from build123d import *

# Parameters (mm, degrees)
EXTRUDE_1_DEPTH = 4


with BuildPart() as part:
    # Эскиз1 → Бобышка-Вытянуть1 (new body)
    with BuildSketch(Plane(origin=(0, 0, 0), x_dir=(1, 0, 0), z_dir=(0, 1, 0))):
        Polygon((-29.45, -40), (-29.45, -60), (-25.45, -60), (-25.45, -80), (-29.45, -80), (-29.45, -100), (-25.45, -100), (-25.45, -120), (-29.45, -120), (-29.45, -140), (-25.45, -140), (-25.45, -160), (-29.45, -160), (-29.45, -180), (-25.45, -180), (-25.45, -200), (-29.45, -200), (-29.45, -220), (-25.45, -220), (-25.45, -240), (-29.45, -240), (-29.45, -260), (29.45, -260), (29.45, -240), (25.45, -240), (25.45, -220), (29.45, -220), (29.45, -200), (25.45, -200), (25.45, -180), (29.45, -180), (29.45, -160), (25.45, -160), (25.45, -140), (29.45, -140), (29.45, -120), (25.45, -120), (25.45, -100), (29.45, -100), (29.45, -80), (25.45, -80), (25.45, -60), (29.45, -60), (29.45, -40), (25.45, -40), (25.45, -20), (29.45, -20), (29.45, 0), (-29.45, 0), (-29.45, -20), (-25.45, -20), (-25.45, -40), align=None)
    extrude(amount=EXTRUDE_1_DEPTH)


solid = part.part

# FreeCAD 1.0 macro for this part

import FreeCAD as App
import Part
import Sketcher

doc = App.newDocument("Part")
body = doc.addObject("PartDesign::Body", "Body")

sketch1 = body.newObject("Sketcher::SketchObject", "Sketch")
sketch1.AttachmentSupport = (doc.getObject("XZ_Plane"), [""])
sketch1.MapMode = "FlatFace"
sketch1.addGeometry([
    Part.LineSegment(App.Vector(-29.45, 40, 0), App.Vector(-29.45, 60, 0)),
    Part.LineSegment(App.Vector(-29.45, 60, 0), App.Vector(-25.45, 60, 0)),
    Part.LineSegment(App.Vector(-25.45, 60, 0), App.Vector(-25.45, 80, 0)),
    Part.LineSegment(App.Vector(-25.45, 80, 0), App.Vector(-29.45, 80, 0)),
    Part.LineSegment(App.Vector(-29.45, 80, 0), App.Vector(-29.45, 100, 0)),
    Part.LineSegment(App.Vector(-29.45, 100, 0), App.Vector(-25.45, 100, 0)),
    Part.LineSegment(App.Vector(-25.45, 100, 0), App.Vector(-25.45, 120, 0)),
    Part.LineSegment(App.Vector(-25.45, 120, 0), App.Vector(-29.45, 120, 0)),
    Part.LineSegment(App.Vector(-29.45, 120, 0), App.Vector(-29.45, 140, 0)),
    Part.LineSegment(App.Vector(-29.45, 140, 0), App.Vector(-25.45, 140, 0)),
    Part.LineSegment(App.Vector(-25.45, 140, 0), App.Vector(-25.45, 160, 0)),
    Part.LineSegment(App.Vector(-25.45, 160, 0), App.Vector(-29.45, 160, 0)),
    Part.LineSegment(App.Vector(-29.45, 160, 0), App.Vector(-29.45, 180, 0)),
    Part.LineSegment(App.Vector(-29.45, 180, 0), App.Vector(-25.45, 180, 0)),
    Part.LineSegment(App.Vector(-25.45, 180, 0), App.Vector(-25.45, 200, 0)),
    Part.LineSegment(App.Vector(-25.45, 200, 0), App.Vector(-29.45, 200, 0)),
    Part.LineSegment(App.Vector(-29.45, 200, 0), App.Vector(-29.45, 220, 0)),
    Part.LineSegment(App.Vector(-29.45, 220, 0), App.Vector(-25.45, 220, 0)),
    Part.LineSegment(App.Vector(-25.45, 220, 0), App.Vector(-25.45, 240, 0)),
    Part.LineSegment(App.Vector(-25.45, 240, 0), App.Vector(-29.45, 240, 0)),
    Part.LineSegment(App.Vector(-29.45, 240, 0), App.Vector(-29.45, 260, 0)),
    Part.LineSegment(App.Vector(-29.45, 260, 0), App.Vector(29.45, 260, 0)),
    Part.LineSegment(App.Vector(29.45, 260, 0), App.Vector(29.45, 240, 0)),
    Part.LineSegment(App.Vector(29.45, 240, 0), App.Vector(25.45, 240, 0)),
    Part.LineSegment(App.Vector(25.45, 240, 0), App.Vector(25.45, 220, 0)),
    Part.LineSegment(App.Vector(25.45, 220, 0), App.Vector(29.45, 220, 0)),
    Part.LineSegment(App.Vector(29.45, 220, 0), App.Vector(29.45, 200, 0)),
    Part.LineSegment(App.Vector(29.45, 200, 0), App.Vector(25.45, 200, 0)),
    Part.LineSegment(App.Vector(25.45, 200, 0), App.Vector(25.45, 180, 0)),
    Part.LineSegment(App.Vector(25.45, 180, 0), App.Vector(29.45, 180, 0)),
    Part.LineSegment(App.Vector(29.45, 180, 0), App.Vector(29.45, 160, 0)),
    Part.LineSegment(App.Vector(29.45, 160, 0), App.Vector(25.45, 160, 0)),
    Part.LineSegment(App.Vector(25.45, 160, 0), App.Vector(25.45, 140, 0)),
    Part.LineSegment(App.Vector(25.45, 140, 0), App.Vector(29.45, 140, 0)),
    Part.LineSegment(App.Vector(29.45, 140, 0), App.Vector(29.45, 120, 0)),
    Part.LineSegment(App.Vector(29.45, 120, 0), App.Vector(25.45, 120, 0)),
    Part.LineSegment(App.Vector(25.45, 120, 0), App.Vector(25.45, 100, 0)),
    Part.LineSegment(App.Vector(25.45, 100, 0), App.Vector(29.45, 100, 0)),
    Part.LineSegment(App.Vector(29.45, 100, 0), App.Vector(29.45, 80, 0)),
    Part.LineSegment(App.Vector(29.45, 80, 0), App.Vector(25.45, 80, 0)),
    Part.LineSegment(App.Vector(25.45, 80, 0), App.Vector(25.45, 60, 0)),
    Part.LineSegment(App.Vector(25.45, 60, 0), App.Vector(29.45, 60, 0)),
    Part.LineSegment(App.Vector(29.45, 60, 0), App.Vector(29.45, 40, 0)),
    Part.LineSegment(App.Vector(29.45, 40, 0), App.Vector(25.45, 40, 0)),
    Part.LineSegment(App.Vector(25.45, 40, 0), App.Vector(25.45, 20, 0)),
    Part.LineSegment(App.Vector(25.45, 20, 0), App.Vector(29.45, 20, 0)),
    Part.LineSegment(App.Vector(29.45, 20, 0), App.Vector(29.45, 0, 0)),
    Part.LineSegment(App.Vector(29.45, 0, 0), App.Vector(-29.45, 0, 0)),
    Part.LineSegment(App.Vector(-29.45, 0, 0), App.Vector(-29.45, 20, 0)),
    Part.LineSegment(App.Vector(-29.45, 20, 0), App.Vector(-25.45, 20, 0)),
    Part.LineSegment(App.Vector(-25.45, 20, 0), App.Vector(-25.45, 40, 0)),
    Part.LineSegment(App.Vector(-25.45, 40, 0), App.Vector(-29.45, 40, 0)),
], False)
sketch1.addConstraint([
    Sketcher.Constraint("Coincident", 0, 2, 1, 1),
    Sketcher.Constraint("Coincident", 1, 2, 2, 1),
    Sketcher.Constraint("Coincident", 2, 2, 3, 1),
    Sketcher.Constraint("Coincident", 3, 2, 4, 1),
    Sketcher.Constraint("Coincident", 4, 2, 5, 1),
    Sketcher.Constraint("Coincident", 5, 2, 6, 1),
    Sketcher.Constraint("Coincident", 6, 2, 7, 1),
    Sketcher.Constraint("Coincident", 7, 2, 8, 1),
    Sketcher.Constraint("Coincident", 8, 2, 9, 1),
    Sketcher.Constraint("Coincident", 9, 2, 10, 1),
    Sketcher.Constraint("Coincident", 10, 2, 11, 1),
    Sketcher.Constraint("Coincident", 11, 2, 12, 1),
    Sketcher.Constraint("Coincident", 12, 2, 13, 1),
    Sketcher.Constraint("Coincident", 13, 2, 14, 1),
    Sketcher.Constraint("Coincident", 14, 2, 15, 1),
    Sketcher.Constraint("Coincident", 15, 2, 16, 1),
    Sketcher.Constraint("Coincident", 16, 2, 17, 1),
    Sketcher.Constraint("Coincident", 17, 2, 18, 1),
    Sketcher.Constraint("Coincident", 18, 2, 19, 1),
    Sketcher.Constraint("Coincident", 19, 2, 20, 1),
    Sketcher.Constraint("Coincident", 20, 2, 21, 1),
    Sketcher.Constraint("Coincident", 21, 2, 22, 1),
    Sketcher.Constraint("Coincident", 22, 2, 23, 1),
    Sketcher.Constraint("Coincident", 23, 2, 24, 1),
    Sketcher.Constraint("Coincident", 24, 2, 25, 1),
    Sketcher.Constraint("Coincident", 25, 2, 26, 1),
    Sketcher.Constraint("Coincident", 26, 2, 27, 1),
    Sketcher.Constraint("Coincident", 27, 2, 28, 1),
    Sketcher.Constraint("Coincident", 28, 2, 29, 1),
    Sketcher.Constraint("Coincident", 29, 2, 30, 1),
    Sketcher.Constraint("Coincident", 30, 2, 31, 1),
    Sketcher.Constraint("Coincident", 31, 2, 32, 1),
    Sketcher.Constraint("Coincident", 32, 2, 33, 1),
    Sketcher.Constraint("Coincident", 33, 2, 34, 1),
    Sketcher.Constraint("Coincident", 34, 2, 35, 1),
    Sketcher.Constraint("Coincident", 35, 2, 36, 1),
    Sketcher.Constraint("Coincident", 36, 2, 37, 1),
    Sketcher.Constraint("Coincident", 37, 2, 38, 1),
    Sketcher.Constraint("Coincident", 38, 2, 39, 1),
    Sketcher.Constraint("Coincident", 39, 2, 40, 1),
    Sketcher.Constraint("Coincident", 40, 2, 41, 1),
    Sketcher.Constraint("Coincident", 41, 2, 42, 1),
    Sketcher.Constraint("Coincident", 42, 2, 43, 1),
    Sketcher.Constraint("Coincident", 43, 2, 44, 1),
    Sketcher.Constraint("Coincident", 44, 2, 45, 1),
    Sketcher.Constraint("Coincident", 45, 2, 46, 1),
    Sketcher.Constraint("Coincident", 46, 2, 47, 1),
    Sketcher.Constraint("Coincident", 47, 2, 48, 1),
    Sketcher.Constraint("Coincident", 48, 2, 49, 1),
    Sketcher.Constraint("Coincident", 49, 2, 50, 1),
    Sketcher.Constraint("Coincident", 50, 2, 51, 1),
    Sketcher.Constraint("Coincident", 51, 2, 0, 1),
    Sketcher.Constraint("Vertical", 0),
    Sketcher.Constraint("Horizontal", 1),
    Sketcher.Constraint("Vertical", 2),
    Sketcher.Constraint("Horizontal", 3),
    Sketcher.Constraint("Vertical", 4),
    Sketcher.Constraint("Horizontal", 5),
    Sketcher.Constraint("Vertical", 6),
    Sketcher.Constraint("Horizontal", 7),
    Sketcher.Constraint("Vertical", 8),
    Sketcher.Constraint("Horizontal", 9),
    Sketcher.Constraint("Vertical", 10),
    Sketcher.Constraint("Horizontal", 11),
    Sketcher.Constraint("Vertical", 12),
    Sketcher.Constraint("Horizontal", 13),
    Sketcher.Constraint("Vertical", 14),
    Sketcher.Constraint("Horizontal", 15),
    Sketcher.Constraint("Vertical", 16),
    Sketcher.Constraint("Horizontal", 17),
    Sketcher.Constraint("Vertical", 18),
    Sketcher.Constraint("Horizontal", 19),
    Sketcher.Constraint("Vertical", 20),
    Sketcher.Constraint("Horizontal", 21),
    Sketcher.Constraint("Vertical", 22),
    Sketcher.Constraint("Horizontal", 23),
    Sketcher.Constraint("Vertical", 24),
    Sketcher.Constraint("Horizontal", 25),
    Sketcher.Constraint("Vertical", 26),
    Sketcher.Constraint("Horizontal", 27),
    Sketcher.Constraint("Vertical", 28),
    Sketcher.Constraint("Horizontal", 29),
    Sketcher.Constraint("Vertical", 30),
    Sketcher.Constraint("Horizontal", 31),
    Sketcher.Constraint("Vertical", 32),
    Sketcher.Constraint("Horizontal", 33),
    Sketcher.Constraint("Vertical", 34),
    Sketcher.Constraint("Horizontal", 35),
    Sketcher.Constraint("Vertical", 36),
    Sketcher.Constraint("Horizontal", 37),
    Sketcher.Constraint("Vertical", 38),
    Sketcher.Constraint("Horizontal", 39),
    Sketcher.Constraint("Vertical", 40),
    Sketcher.Constraint("Horizontal", 41),
    Sketcher.Constraint("Vertical", 42),
    Sketcher.Constraint("Horizontal", 43),
    Sketcher.Constraint("Vertical", 44),
    Sketcher.Constraint("Horizontal", 45),
    Sketcher.Constraint("Vertical", 46),
    Sketcher.Constraint("Horizontal", 47),
    Sketcher.Constraint("Vertical", 48),
    Sketcher.Constraint("Horizontal", 49),
    Sketcher.Constraint("Vertical", 50),
    Sketcher.Constraint("Horizontal", 51),
    Sketcher.Constraint("Symmetric", 46, 2, 47, 2, -1, 1),
    Sketcher.Constraint("Symmetric", 19, 2, 22, 2, -2),
    Sketcher.Constraint("Symmetric", 17, 2, 24, 2, -2),
    Sketcher.Constraint("Symmetric", 15, 2, 26, 2, -2),
    Sketcher.Constraint("Symmetric", 13, 2, 28, 2, -2),
    Sketcher.Constraint("Symmetric", 11, 2, 30, 2, -2),
    Sketcher.Constraint("Symmetric", 9, 2, 32, 2, -2),
    Sketcher.Constraint("Symmetric", 7, 2, 34, 2, -2),
    Sketcher.Constraint("Symmetric", 5, 2, 36, 2, -2),
    Sketcher.Constraint("Symmetric", 3, 2, 38, 2, -2),
    Sketcher.Constraint("Symmetric", 1, 2, 40, 2, -2),
    Sketcher.Constraint("Symmetric", 44, 2, 49, 2, -2),
    Sketcher.Constraint("Symmetric", 42, 2, 51, 2, -2),
    Sketcher.Constraint("Vertical", 0, 2, 3, 2),
    Sketcher.Constraint("Vertical", 2, 2, 5, 2),
    Sketcher.Constraint("Vertical", 4, 2, 7, 2),
    Sketcher.Constraint("Vertical", 6, 2, 9, 2),
    Sketcher.Constraint("Vertical", 8, 2, 11, 2),
    Sketcher.Constraint("Vertical", 10, 2, 13, 2),
    Sketcher.Constraint("Vertical", 12, 2, 15, 2),
    Sketcher.Constraint("Vertical", 14, 2, 17, 2),
    Sketcher.Constraint("Vertical", 16, 2, 19, 2),
    Sketcher.Constraint("Vertical", 40, 2, 43, 2),
    Sketcher.Constraint("Vertical", 42, 2, 45, 2),
    Sketcher.Constraint("Equal", 0, 2),
    Sketcher.Constraint("Equal", 2, 4),
    Sketcher.Constraint("Equal", 4, 6),
    Sketcher.Constraint("Equal", 6, 8),
    Sketcher.Constraint("Equal", 8, 10),
    Sketcher.Constraint("Equal", 10, 12),
    Sketcher.Constraint("Equal", 12, 14),
    Sketcher.Constraint("Equal", 14, 16),
    Sketcher.Constraint("Equal", 16, 18),
    Sketcher.Constraint("Equal", 18, 20),
    Sketcher.Constraint("Equal", 42, 44),
    Sketcher.Constraint("Equal", 44, 46),
    Sketcher.Constraint("DistanceX", 1, 1, 1, 2, 4.0),
    Sketcher.Constraint("DistanceY", 0, 1, 0, 2, 20.0),
    Sketcher.Constraint("DistanceX", 21, 1, 21, 2, 58.9),
])
pad1 = body.newObject("PartDesign::Pad", "Pad")
pad1.Profile = sketch1
pad1.Length = 4
pad1.Reversed = True

doc.recompute()
